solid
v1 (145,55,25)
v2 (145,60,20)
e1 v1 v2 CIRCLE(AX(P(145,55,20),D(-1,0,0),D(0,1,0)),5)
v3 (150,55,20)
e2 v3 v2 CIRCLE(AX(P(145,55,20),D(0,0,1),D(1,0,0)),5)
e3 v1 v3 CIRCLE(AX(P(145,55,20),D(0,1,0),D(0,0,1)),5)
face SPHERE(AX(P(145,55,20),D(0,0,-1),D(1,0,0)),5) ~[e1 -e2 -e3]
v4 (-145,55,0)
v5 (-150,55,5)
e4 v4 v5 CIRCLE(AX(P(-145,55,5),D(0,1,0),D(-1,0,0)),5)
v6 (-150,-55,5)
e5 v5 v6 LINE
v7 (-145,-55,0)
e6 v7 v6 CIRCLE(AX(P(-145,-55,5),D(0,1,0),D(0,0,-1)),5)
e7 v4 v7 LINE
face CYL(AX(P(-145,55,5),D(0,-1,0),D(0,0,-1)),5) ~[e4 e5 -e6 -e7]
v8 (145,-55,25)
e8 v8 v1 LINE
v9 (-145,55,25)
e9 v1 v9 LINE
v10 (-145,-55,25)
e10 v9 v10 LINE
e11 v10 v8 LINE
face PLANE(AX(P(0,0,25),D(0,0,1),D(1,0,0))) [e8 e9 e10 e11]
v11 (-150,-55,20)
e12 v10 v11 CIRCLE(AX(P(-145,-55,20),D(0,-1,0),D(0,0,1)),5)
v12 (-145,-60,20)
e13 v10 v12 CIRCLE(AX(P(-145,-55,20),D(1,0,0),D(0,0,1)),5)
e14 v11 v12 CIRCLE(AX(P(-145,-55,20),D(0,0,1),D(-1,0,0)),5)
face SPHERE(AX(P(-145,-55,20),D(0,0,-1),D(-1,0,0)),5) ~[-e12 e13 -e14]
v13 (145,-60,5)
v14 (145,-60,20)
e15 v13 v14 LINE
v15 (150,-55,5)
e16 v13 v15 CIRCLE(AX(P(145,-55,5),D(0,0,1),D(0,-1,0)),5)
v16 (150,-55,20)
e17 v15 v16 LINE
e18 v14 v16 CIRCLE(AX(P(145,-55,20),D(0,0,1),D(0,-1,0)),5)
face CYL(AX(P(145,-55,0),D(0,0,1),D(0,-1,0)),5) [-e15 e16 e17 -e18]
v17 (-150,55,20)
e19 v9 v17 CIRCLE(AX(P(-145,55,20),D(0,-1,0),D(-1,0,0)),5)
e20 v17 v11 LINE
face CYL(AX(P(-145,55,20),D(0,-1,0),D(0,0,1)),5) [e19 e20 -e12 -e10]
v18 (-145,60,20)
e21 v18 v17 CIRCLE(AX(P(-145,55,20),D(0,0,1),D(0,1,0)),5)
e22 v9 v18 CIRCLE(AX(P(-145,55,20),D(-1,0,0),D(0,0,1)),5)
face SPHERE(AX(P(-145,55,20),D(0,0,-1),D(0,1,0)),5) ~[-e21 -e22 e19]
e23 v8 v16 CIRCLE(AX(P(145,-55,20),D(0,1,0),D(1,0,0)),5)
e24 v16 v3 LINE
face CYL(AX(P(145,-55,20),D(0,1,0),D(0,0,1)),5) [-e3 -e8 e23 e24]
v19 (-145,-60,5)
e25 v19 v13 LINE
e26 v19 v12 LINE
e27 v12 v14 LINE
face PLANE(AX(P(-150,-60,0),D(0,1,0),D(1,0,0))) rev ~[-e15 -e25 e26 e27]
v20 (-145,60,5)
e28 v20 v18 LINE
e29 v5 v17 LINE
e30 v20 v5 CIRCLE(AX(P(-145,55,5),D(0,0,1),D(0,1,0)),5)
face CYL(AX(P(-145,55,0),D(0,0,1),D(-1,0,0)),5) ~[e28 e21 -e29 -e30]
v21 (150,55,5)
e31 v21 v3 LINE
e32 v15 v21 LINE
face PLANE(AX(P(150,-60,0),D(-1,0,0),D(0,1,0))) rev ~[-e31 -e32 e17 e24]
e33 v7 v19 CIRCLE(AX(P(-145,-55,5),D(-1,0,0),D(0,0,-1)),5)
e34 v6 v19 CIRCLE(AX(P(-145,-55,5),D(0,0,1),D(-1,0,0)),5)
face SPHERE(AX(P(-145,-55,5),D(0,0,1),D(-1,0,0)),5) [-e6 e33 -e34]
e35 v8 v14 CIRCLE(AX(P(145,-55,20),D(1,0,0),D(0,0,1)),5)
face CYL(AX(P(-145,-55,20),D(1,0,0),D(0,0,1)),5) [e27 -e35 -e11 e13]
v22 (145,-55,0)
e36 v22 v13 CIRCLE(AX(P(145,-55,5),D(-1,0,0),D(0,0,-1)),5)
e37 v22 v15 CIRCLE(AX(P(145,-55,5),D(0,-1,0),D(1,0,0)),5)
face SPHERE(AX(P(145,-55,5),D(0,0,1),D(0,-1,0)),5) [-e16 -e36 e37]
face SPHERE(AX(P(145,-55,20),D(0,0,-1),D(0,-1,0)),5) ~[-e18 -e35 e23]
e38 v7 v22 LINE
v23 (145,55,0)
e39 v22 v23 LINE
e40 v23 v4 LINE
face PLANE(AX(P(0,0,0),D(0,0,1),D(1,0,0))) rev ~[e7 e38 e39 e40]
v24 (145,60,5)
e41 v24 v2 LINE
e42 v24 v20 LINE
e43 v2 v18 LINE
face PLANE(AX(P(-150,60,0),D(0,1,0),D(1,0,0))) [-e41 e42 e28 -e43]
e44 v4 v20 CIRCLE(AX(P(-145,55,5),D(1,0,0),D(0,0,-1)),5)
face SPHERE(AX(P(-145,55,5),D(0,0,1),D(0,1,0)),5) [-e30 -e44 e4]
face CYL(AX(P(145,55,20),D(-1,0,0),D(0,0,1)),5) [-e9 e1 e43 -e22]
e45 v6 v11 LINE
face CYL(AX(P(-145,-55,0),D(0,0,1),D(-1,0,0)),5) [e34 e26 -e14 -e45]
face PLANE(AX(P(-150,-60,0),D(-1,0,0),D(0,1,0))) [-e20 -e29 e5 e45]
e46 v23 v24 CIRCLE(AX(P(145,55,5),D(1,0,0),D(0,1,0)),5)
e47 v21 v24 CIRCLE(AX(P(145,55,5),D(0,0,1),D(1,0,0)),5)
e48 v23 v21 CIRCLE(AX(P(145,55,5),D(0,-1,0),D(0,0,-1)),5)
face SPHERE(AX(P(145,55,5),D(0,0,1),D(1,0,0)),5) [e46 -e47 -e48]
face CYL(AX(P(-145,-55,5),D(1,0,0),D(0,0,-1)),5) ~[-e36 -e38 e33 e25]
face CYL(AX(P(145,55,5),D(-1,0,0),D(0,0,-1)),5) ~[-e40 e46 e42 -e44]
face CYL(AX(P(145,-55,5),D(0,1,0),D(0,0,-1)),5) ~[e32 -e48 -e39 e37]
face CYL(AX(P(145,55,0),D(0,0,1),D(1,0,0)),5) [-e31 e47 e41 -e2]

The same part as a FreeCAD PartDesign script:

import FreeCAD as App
import Part
import Sketcher

V = App.Vector


def edges_at(feature, points):
    """Names of the edges that pass closest to the given points."""
    edges = feature.Shape.Edges
    near = lambda p: min(range(len(edges)), key=lambda i: edges[i].distToShape(Part.Vertex(*p))[0])
    return sorted({f"Edge{near(p) + 1}" for p in points})

doc = App.newDocument("Part")
body = doc.addObject("PartDesign::Body", "Body")

# Sketch on XY plane
sketch1 = body.newObject("Sketcher::SketchObject", "Sketch")
sketch1.AttachmentSupport = (doc.getObject("XY_Plane"), [""])
sketch1.MapMode = "FlatFace"
sketch1.addGeometry(Part.LineSegment(V(-150, 60, 0), V(-150, -60, 0)), False)
sketch1.addGeometry(Part.LineSegment(V(-150, -60, 0), V(150, -60, 0)), False)
sketch1.addGeometry(Part.LineSegment(V(150, -60, 0), V(150, 60, 0)), False)
sketch1.addGeometry(Part.LineSegment(V(150, 60, 0), V(-150, 60, 0)), False)
sketch1.addConstraint(Sketcher.Constraint("Coincident", 0, 2, 1, 1))
sketch1.addConstraint(Sketcher.Constraint("Coincident", 1, 2, 2, 1))
sketch1.addConstraint(Sketcher.Constraint("Coincident", 2, 2, 3, 1))
sketch1.addConstraint(Sketcher.Constraint("Coincident", 3, 2, 0, 1))
sketch1.addConstraint(Sketcher.Constraint("Vertical", 0))
sketch1.addConstraint(Sketcher.Constraint("Horizontal", 1))
sketch1.addConstraint(Sketcher.Constraint("Vertical", 2))
sketch1.addConstraint(Sketcher.Constraint("Horizontal", 3))
sketch1.addConstraint(Sketcher.Constraint("Symmetric", 0, 2, 2, 2, -1, 1))
sketch1.addConstraint(Sketcher.Constraint("DistanceX", 1, 1, 1, 2, 300.0))
sketch1.addConstraint(Sketcher.Constraint("DistanceY", 0, 2, 0, 1, 120.0))
pad1 = body.newObject("PartDesign::Pad", "Pad")
pad1.Profile = sketch1
pad1.Length = 25
doc.recompute()

fillet = body.newObject("PartDesign::Fillet", "Fillet")
fillet.Base = (pad1, edges_at(pad1, [
    (150, -60, 12.5),
    (150, 60, 12.5),
    (-150, -60, 12.5),
    (-150, 60, 12.5),
]))
fillet.Radius = 5
doc.recompute()

fillet2 = body.newObject("PartDesign::Fillet", "Fillet001")
fillet2.Base = (fillet, edges_at(fillet, [(0, -60, 0), (0, -60, 25)]))
fillet2.Radius = 5

doc.recompute()
